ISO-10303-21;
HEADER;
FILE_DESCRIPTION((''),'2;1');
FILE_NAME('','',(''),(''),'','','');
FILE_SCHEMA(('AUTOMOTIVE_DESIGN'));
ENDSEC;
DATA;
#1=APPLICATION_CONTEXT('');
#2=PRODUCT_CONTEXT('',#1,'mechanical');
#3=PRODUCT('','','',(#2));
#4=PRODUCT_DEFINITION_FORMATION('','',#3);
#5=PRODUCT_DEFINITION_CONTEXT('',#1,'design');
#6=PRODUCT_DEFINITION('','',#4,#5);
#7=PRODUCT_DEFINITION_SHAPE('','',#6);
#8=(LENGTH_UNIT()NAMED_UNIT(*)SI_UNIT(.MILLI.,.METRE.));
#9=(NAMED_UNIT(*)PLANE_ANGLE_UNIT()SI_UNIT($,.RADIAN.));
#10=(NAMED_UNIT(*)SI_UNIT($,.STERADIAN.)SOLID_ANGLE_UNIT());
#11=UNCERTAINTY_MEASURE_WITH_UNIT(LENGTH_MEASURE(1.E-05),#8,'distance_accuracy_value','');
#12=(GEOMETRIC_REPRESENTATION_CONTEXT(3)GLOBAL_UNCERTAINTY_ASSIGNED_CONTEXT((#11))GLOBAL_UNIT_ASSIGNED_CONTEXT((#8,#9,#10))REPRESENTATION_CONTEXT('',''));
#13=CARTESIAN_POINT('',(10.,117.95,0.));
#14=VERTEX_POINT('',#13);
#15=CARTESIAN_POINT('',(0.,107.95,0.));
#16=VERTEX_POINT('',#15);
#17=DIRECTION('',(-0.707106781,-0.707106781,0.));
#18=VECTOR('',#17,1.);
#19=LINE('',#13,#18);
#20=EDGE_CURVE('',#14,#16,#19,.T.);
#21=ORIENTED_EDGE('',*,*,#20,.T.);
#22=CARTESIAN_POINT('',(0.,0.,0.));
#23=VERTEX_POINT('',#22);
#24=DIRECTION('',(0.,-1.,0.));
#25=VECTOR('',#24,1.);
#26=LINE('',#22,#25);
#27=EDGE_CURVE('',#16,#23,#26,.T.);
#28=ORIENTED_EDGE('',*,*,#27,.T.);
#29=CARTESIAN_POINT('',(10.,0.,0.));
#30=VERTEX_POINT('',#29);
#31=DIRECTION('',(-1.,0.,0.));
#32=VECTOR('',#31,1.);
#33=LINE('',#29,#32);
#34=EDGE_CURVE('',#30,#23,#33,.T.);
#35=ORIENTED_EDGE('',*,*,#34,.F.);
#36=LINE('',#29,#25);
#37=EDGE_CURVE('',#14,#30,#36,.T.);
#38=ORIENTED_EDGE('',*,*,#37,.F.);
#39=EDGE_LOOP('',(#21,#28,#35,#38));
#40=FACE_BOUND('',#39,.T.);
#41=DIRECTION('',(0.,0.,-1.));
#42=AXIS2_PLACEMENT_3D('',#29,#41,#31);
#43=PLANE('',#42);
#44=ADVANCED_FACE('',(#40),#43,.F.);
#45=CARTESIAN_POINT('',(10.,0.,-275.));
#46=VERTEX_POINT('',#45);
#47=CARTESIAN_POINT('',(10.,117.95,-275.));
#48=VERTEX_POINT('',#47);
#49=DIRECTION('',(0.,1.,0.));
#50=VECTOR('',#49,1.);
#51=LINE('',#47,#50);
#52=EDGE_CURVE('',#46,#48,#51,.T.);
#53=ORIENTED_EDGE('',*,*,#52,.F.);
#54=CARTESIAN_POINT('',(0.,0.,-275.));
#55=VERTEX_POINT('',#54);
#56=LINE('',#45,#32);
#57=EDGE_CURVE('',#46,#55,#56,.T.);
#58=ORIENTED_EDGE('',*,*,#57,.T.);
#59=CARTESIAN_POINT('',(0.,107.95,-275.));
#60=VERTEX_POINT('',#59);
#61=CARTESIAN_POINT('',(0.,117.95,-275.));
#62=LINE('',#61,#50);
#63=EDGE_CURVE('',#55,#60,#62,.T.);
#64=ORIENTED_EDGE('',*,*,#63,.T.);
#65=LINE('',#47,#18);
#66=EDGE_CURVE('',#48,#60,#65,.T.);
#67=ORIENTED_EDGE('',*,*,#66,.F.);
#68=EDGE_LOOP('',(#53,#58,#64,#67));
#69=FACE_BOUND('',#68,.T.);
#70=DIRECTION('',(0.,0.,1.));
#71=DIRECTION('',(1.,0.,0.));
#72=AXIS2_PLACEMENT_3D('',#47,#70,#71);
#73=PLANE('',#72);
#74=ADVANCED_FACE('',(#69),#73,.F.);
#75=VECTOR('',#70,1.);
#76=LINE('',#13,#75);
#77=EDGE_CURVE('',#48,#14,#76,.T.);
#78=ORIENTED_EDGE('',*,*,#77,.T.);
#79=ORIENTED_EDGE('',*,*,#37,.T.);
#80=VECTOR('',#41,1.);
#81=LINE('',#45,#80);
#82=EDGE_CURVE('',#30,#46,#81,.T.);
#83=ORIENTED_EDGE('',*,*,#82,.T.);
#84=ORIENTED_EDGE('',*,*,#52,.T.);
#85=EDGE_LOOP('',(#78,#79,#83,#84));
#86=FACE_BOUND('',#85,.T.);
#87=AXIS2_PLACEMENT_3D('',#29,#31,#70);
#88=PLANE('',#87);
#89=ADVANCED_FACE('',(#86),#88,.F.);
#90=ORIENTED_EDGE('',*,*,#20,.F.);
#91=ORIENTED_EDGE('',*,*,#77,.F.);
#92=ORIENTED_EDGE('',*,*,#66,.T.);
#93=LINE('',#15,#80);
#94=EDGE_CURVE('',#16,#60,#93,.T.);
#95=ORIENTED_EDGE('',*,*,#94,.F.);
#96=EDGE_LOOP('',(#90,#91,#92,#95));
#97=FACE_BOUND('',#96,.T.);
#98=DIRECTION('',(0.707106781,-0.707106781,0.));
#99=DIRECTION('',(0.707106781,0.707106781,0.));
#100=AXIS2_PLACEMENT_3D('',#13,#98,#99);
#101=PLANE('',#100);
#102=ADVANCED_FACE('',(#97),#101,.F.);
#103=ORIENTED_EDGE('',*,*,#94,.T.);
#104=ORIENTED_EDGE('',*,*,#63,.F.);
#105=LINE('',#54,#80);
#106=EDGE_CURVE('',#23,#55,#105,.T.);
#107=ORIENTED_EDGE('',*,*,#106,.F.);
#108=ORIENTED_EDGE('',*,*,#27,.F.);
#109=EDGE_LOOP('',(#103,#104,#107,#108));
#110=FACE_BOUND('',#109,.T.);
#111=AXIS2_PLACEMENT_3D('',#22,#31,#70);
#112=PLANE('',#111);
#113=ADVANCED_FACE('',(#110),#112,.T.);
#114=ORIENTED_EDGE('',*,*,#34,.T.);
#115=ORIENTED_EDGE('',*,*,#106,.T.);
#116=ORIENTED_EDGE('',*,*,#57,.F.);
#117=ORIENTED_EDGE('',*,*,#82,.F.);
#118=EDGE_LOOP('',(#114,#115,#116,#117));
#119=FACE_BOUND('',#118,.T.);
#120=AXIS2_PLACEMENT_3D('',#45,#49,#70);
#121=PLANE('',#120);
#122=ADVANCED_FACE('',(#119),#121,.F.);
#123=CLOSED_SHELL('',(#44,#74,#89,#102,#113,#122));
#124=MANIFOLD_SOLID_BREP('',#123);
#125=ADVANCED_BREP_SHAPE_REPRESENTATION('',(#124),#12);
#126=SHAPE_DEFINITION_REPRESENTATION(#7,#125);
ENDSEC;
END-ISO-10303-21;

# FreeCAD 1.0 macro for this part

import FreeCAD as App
import Part
import Sketcher
from FreeCAD import Vector


def add_polygon(sketch, points):
    """Adds a closed chain of lines whose ends are joined by coincident constraints."""
    first, n = sketch.GeometryCount, len(points)
    for a, b in zip(points, points[1:] + points[:1]):
        sketch.addGeometry(Part.LineSegment(App.Vector(*a, 0), App.Vector(*b, 0)), False)
    for i in range(n):
        sketch.addConstraint(Sketcher.Constraint("Coincident", first + i, 2, first + (i + 1) % n, 1))

doc = App.newDocument("Part")
body = doc.addObject("PartDesign::Body", "Body")

sketch1 = body.newObject("Sketcher::SketchObject", "Sketch")
sketch1.AttachmentSupport = (doc.getObject("YZ_Plane"), [""])
sketch1.MapMode = "FlatFace"
add_polygon(sketch1, [(118, 0), (0, 0), (0, -275), (118, -275)])
sketch1.addConstraint(Sketcher.Constraint("Horizontal", 0))
sketch1.addConstraint(Sketcher.Constraint("Vertical", 1))
sketch1.addConstraint(Sketcher.Constraint("Horizontal", 2))
sketch1.addConstraint(Sketcher.Constraint("Vertical", 3))
sketch1.addConstraint(Sketcher.Constraint("Coincident", 0, 2, -1, 1))
sketch1.addConstraint(Sketcher.Constraint("DistanceY", 1, 2, 1, 1, 275.0))
sketch1.addConstraint(Sketcher.Constraint("DistanceX", 0, 2, 0, 1, 117.95))
pad1 = body.newObject("PartDesign::Pad", "Pad")
pad1.Profile = sketch1
pad1.Length = 10

sketch2 = body.newObject("Sketcher::SketchObject", "Sketch001")
sketch2.AttachmentSupport = (doc.getObject("XY_Plane"), [""])
sketch2.MapMode = "FlatFace"
sketch2.AttachmentOffset = App.Placement(Vector(0, 0, -275), App.Rotation())
add_polygon(sketch2, [(10, 118), (0, 108), (0, 118)])
sketch2.addConstraint(Sketcher.Constraint("Vertical", 1))
sketch2.addConstraint(Sketcher.Constraint("Horizontal", 2))
sketch2.addConstraint(Sketcher.Constraint("PointOnObject", 0, 2, -2))
sketch2.addConstraint(Sketcher.Constraint("Equal", 2, 1))
sketch2.addConstraint(Sketcher.Constraint("DistanceX", 2, 1, 2, 2, 10.0))
sketch2.addConstraint(Sketcher.Constraint("DistanceY", -1, 1, 0, 2, 107.95))
pocket1 = body.newObject("PartDesign::Pocket", "Pocket")
pocket1.Profile = sketch2
pocket1.Type = "ThroughAll"
pocket1.Reversed = True

doc.recompute()
